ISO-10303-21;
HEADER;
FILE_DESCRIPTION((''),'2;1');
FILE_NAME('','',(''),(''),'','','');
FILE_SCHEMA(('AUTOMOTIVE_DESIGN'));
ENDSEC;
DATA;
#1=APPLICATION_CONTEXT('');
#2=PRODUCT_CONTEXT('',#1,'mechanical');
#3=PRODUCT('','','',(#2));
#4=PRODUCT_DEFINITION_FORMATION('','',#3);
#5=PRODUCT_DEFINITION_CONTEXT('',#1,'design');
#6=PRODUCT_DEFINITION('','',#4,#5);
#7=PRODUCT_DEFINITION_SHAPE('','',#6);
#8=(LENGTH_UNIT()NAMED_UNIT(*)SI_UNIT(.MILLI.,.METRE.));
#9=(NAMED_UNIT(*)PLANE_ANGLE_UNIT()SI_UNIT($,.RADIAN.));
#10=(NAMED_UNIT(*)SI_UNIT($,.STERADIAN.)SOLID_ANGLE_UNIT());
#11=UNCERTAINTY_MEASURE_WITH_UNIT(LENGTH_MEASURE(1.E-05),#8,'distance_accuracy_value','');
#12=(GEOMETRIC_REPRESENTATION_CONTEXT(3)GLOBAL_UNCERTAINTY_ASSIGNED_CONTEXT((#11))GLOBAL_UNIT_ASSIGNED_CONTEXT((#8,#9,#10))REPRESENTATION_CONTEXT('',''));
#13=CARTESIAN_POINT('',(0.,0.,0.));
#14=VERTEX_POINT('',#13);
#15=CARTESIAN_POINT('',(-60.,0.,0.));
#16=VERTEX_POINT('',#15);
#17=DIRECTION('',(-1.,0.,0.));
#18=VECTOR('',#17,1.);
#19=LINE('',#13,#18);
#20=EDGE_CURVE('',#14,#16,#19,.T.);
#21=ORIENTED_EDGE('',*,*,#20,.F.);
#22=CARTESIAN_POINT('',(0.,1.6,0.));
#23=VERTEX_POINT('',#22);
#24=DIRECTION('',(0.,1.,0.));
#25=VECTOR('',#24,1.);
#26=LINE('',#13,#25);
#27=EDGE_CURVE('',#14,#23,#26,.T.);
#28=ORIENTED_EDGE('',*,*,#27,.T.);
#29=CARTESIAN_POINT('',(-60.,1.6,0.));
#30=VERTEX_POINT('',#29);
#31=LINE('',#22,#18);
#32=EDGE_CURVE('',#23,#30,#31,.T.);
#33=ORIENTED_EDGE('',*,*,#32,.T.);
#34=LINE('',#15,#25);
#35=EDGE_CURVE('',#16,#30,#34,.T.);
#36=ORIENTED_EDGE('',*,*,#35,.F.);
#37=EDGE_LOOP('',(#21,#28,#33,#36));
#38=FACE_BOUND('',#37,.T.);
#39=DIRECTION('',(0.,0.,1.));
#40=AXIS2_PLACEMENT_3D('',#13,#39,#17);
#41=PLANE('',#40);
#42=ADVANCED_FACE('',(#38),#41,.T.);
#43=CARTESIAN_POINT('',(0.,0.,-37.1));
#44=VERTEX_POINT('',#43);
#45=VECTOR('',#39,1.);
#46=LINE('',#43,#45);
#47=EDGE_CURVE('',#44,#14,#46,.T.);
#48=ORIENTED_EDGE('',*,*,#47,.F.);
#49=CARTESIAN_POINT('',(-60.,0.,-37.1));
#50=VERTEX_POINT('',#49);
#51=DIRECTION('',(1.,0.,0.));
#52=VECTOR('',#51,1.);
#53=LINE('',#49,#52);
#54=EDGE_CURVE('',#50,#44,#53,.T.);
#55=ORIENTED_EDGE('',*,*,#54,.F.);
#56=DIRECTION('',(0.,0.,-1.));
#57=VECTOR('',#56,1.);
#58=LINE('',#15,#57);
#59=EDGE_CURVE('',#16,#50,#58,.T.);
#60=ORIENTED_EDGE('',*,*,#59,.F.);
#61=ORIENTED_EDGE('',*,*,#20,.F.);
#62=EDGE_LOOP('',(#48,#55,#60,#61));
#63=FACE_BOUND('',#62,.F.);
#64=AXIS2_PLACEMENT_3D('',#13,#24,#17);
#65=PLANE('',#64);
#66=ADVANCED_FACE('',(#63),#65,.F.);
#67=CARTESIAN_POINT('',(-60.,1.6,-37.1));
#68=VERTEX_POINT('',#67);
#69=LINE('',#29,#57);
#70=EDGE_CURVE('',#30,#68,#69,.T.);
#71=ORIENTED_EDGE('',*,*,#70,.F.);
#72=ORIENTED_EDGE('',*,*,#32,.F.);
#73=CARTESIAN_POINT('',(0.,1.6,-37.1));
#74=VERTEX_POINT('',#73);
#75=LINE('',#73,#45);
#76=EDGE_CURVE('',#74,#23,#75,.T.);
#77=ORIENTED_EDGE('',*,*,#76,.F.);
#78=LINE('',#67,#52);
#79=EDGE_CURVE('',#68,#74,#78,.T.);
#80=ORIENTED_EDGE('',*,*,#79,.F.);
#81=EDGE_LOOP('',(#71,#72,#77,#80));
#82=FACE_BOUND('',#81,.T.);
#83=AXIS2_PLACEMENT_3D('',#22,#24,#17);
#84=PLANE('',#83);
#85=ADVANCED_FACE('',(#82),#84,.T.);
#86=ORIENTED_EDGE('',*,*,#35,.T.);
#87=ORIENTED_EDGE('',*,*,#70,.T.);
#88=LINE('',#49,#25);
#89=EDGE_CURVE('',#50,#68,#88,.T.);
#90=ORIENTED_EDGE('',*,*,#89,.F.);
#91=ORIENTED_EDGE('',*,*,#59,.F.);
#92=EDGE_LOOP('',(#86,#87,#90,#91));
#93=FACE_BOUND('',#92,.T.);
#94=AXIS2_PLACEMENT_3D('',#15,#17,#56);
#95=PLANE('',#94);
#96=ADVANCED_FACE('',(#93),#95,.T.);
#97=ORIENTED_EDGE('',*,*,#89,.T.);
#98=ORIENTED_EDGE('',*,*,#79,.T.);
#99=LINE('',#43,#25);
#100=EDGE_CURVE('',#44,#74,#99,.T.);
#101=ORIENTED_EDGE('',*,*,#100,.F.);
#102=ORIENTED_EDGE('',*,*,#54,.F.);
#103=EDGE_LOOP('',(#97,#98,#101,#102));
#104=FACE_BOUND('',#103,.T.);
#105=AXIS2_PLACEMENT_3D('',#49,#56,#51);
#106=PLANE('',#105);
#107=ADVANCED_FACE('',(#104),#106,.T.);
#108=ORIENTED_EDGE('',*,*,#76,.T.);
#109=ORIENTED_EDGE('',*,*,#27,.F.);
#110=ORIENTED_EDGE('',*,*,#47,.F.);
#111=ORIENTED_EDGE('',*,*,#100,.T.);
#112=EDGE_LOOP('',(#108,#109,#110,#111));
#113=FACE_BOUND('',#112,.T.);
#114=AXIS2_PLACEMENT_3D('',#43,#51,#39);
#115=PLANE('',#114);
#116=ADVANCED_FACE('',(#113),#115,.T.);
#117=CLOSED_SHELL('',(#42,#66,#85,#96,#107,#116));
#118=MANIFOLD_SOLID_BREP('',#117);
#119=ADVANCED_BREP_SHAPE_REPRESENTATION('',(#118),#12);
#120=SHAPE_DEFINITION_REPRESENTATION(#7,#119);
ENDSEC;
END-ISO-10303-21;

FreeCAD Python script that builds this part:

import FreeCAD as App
import Part
import Sketcher

V = App.Vector

doc = App.newDocument("Part")
body = doc.addObject("PartDesign::Body", "Body")

# Sketch on XZ plane
sketch1 = body.newObject("Sketcher::SketchObject", "Sketch")
sketch1.AttachmentSupport = (doc.getObject("XZ_Plane"), [""])
sketch1.MapMode = "FlatFace"
sketch1.addGeometry([
    Part.LineSegment(V(-60, 0, 0), V(0, 0, 0)),
    Part.LineSegment(V(0, 0, 0), V(0, -37.1, 0)),
    Part.LineSegment(V(0, -37.1, 0), V(-60, -37.1, 0)),
    Part.LineSegment(V(-60, -37.1, 0), V(-60, 0, 0)),
], False)
sketch1.addConstraint([
    Sketcher.Constraint("Coincident", 0, 2, 1, 1),
    Sketcher.Constraint("Coincident", 1, 2, 2, 1),
    Sketcher.Constraint("Coincident", 2, 2, 3, 1),
    Sketcher.Constraint("Coincident", 3, 2, 0, 1),
    Sketcher.Constraint("Horizontal", 0),
    Sketcher.Constraint("Vertical", 1),
    Sketcher.Constraint("Horizontal", 2),
    Sketcher.Constraint("Vertical", 3),
    Sketcher.Constraint("Coincident", 0, 2, -1, 1),
    Sketcher.Constraint("DistanceX", 0, 1, 0, 2, 60.0),
    Sketcher.Constraint("DistanceY", 1, 2, 1, 1, 37.1),
])
pad1 = body.newObject("PartDesign::Pad", "Pad")
pad1.Profile = sketch1
pad1.Length = 1.6
pad1.Reversed = True

doc.recompute()
